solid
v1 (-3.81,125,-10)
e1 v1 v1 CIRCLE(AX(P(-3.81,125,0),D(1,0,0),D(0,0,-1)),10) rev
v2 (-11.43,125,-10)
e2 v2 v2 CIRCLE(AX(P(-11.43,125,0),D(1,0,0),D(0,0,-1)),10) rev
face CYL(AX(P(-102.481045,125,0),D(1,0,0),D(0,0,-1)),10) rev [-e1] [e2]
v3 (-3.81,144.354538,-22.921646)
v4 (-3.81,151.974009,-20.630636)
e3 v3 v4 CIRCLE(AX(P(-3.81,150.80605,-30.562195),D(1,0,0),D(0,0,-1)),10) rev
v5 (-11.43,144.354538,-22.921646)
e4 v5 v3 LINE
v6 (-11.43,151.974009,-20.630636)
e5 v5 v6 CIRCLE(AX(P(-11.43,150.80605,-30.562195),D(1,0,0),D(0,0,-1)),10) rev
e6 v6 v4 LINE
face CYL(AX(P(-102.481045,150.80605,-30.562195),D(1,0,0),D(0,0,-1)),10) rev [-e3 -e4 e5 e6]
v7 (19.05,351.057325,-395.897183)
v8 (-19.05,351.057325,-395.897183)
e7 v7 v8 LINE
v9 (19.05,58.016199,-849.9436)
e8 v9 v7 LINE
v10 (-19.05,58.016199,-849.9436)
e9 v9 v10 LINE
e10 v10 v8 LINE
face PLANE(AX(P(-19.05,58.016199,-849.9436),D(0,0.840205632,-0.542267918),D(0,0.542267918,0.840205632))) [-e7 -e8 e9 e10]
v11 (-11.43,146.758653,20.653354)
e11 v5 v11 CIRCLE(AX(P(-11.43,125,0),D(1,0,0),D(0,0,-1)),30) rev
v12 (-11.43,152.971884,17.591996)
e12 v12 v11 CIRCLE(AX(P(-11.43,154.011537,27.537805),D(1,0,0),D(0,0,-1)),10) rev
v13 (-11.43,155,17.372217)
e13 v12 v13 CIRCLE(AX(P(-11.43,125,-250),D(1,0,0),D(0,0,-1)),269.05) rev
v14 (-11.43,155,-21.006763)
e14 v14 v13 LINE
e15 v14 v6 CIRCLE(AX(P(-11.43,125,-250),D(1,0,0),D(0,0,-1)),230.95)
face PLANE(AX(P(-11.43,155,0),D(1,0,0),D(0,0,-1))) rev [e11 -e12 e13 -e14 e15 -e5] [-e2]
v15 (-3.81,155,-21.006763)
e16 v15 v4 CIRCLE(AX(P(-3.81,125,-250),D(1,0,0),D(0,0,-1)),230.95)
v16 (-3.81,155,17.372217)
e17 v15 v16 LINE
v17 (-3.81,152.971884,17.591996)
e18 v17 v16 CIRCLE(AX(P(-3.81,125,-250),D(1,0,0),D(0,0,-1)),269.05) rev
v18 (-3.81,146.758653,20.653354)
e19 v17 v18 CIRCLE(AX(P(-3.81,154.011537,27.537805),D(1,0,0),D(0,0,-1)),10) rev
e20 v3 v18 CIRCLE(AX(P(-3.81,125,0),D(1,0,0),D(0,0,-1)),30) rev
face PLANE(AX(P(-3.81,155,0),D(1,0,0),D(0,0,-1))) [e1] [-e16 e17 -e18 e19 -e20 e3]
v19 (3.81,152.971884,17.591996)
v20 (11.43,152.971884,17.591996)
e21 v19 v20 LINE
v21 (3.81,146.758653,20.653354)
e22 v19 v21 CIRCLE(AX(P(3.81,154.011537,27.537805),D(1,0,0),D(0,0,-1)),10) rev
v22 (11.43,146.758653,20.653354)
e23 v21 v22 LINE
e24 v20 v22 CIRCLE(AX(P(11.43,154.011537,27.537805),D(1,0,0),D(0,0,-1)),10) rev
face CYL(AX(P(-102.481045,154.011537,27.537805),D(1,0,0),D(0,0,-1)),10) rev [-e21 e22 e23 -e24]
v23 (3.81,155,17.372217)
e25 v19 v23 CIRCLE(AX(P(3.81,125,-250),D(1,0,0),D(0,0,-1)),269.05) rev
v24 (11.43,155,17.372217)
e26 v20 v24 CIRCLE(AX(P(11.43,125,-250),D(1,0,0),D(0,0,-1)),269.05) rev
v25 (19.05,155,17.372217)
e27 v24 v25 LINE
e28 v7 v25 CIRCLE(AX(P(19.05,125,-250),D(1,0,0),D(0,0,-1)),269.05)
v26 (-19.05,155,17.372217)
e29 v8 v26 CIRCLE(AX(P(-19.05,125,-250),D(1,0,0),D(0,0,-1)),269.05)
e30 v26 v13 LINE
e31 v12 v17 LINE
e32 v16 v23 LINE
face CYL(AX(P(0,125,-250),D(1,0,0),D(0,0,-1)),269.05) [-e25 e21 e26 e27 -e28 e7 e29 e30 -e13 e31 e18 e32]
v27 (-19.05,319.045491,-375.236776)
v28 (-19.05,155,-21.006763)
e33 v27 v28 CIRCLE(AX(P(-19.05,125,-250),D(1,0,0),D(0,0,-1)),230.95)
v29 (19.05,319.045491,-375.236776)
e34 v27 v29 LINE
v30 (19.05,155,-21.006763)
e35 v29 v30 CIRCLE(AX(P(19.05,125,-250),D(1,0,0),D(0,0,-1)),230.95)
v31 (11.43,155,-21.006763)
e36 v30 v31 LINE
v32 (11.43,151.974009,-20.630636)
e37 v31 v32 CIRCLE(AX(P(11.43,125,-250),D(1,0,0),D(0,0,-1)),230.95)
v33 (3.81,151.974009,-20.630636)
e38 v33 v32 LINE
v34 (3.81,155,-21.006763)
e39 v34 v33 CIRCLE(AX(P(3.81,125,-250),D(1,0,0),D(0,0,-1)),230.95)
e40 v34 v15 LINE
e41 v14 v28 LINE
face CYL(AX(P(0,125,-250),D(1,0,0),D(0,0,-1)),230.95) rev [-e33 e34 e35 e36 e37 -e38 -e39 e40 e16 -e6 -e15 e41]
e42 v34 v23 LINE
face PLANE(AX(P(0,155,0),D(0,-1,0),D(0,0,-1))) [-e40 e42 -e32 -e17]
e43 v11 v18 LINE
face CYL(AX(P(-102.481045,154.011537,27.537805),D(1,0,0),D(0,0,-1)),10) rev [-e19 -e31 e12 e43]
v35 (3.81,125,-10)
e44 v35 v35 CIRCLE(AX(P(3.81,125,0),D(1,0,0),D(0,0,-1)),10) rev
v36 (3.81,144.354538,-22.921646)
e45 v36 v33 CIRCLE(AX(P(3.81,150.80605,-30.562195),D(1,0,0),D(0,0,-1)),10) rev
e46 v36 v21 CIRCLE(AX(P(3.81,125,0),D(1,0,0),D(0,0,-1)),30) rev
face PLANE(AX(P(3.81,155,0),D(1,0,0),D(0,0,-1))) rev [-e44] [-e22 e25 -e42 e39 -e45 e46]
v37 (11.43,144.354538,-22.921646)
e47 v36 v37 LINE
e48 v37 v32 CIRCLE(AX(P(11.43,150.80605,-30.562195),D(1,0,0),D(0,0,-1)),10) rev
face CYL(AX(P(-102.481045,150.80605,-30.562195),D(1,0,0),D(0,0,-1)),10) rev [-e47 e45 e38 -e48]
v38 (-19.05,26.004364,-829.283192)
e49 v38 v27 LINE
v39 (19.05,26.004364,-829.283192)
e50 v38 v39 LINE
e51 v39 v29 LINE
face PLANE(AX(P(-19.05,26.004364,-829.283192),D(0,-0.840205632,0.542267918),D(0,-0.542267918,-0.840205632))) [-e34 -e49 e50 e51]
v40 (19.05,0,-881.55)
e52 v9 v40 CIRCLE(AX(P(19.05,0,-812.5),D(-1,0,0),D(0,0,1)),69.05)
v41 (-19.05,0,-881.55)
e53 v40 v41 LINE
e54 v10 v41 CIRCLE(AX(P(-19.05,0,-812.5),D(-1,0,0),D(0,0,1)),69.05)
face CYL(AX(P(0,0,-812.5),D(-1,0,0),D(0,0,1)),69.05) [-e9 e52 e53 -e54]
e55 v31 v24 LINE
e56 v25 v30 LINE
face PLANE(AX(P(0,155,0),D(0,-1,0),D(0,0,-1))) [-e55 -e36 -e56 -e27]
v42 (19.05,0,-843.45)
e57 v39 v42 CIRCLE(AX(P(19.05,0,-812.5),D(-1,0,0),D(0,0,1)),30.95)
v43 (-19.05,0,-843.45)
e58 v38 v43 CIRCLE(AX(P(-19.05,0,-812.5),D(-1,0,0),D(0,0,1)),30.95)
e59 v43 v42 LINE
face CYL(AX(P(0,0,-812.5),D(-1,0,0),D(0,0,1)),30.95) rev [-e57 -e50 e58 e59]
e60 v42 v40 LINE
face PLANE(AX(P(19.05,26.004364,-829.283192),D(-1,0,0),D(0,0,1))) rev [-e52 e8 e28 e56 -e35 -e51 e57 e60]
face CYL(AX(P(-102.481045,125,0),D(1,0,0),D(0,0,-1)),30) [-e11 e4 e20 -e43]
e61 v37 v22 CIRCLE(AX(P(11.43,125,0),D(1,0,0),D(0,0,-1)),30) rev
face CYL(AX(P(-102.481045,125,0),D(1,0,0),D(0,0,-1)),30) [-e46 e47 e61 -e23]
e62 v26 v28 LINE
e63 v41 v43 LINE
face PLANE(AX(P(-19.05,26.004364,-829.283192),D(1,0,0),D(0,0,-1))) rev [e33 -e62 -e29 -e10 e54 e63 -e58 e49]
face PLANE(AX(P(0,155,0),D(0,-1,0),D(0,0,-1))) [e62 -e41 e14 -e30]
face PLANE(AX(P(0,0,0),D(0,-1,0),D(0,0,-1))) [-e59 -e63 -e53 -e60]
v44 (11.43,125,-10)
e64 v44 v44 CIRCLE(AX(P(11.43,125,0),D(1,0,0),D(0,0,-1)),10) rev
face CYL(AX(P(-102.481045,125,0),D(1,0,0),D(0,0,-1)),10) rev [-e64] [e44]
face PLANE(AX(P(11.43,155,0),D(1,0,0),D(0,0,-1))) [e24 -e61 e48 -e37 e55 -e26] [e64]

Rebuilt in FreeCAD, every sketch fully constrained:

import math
import FreeCAD as App
import Part
import Sketcher
from FreeCAD import Vector

doc = App.newDocument("Part")
params = doc.addObject("Spreadsheet::Sheet", "Params")
for row, (alias, value) in enumerate([
    ("sketch1_width", "38.1 mm"),
    ("sketch2_radius", "50 mm"),
    ("sketch2_radius2", "250 mm"),
    ("sketch3_radius", "10 mm"),
    ("sketch3_radius2", "30 mm"),
    ("sketch3_radius3", "230.95 mm"),
    ("sketch3_radius4", "269.05 mm"),
    ("pad1_length", "38.1 mm"),
    ("sketch4_diameter", "20 mm"),
    ("sketch5_width", "7.62 mm"),
    ("pocket2_length", "60 mm"),
], start=1):
    params.set(f"A{row}", alias)
    params.set(f"B{row}", "=" + value)
    params.setAlias(f"B{row}", alias)

body = doc.addObject("PartDesign::Body", "Body")

# Sketch on XZ plane
sketch1 = body.newObject("Sketcher::SketchObject", "Sketch")
sketch1.AttachmentSupport = (doc.getObject("XZ_Plane"), [""])
sketch1.MapMode = "FlatFace"
sketch1.addGeometry(Part.LineSegment(Vector(-19, -882, 0), Vector(-19, -843, 0)), False)
sketch1.addGeometry(Part.LineSegment(Vector(-19, -843, 0), Vector(19, -843, 0)), False)
sketch1.addGeometry(Part.LineSegment(Vector(19, -843, 0), Vector(19, -882, 0)), False)
sketch1.addGeometry(Part.LineSegment(Vector(19, -882, 0), Vector(-19, -882, 0)), False)
sketch1.addConstraint(Sketcher.Constraint("Coincident", 0, 2, 1, 1))
sketch1.addConstraint(Sketcher.Constraint("Coincident", 1, 2, 2, 1))
sketch1.addConstraint(Sketcher.Constraint("Coincident", 2, 2, 3, 1))
sketch1.addConstraint(Sketcher.Constraint("Coincident", 3, 2, 0, 1))
sketch1.addConstraint(Sketcher.Constraint("Vertical", 0))
sketch1.addConstraint(Sketcher.Constraint("Horizontal", 1))
sketch1.addConstraint(Sketcher.Constraint("Vertical", 2))
sketch1.addConstraint(Sketcher.Constraint("Horizontal", 3))
sketch1.addConstraint(Sketcher.Constraint("Equal", 3, 0))
sketch1.addConstraint(Sketcher.Constraint("DistanceX", 1, 1, 1, 2, 38.1))
sketch1.addConstraint(Sketcher.Constraint("DistanceX", 0, 2, -1, 1, 19.05))
sketch1.addConstraint(Sketcher.Constraint("DistanceY", 0, 2, -1, 1, 843.45))
sketch1.setExpression("Constraints[9]", "Params.sketch1_width")

# Sketch on YZ plane
sketch2 = body.newObject("Sketcher::SketchObject", "Sketch001")
sketch2.AttachmentSupport = (doc.getObject("YZ_Plane"), [""])
sketch2.MapMode = "FlatFace"
sketch2.addGeometry(Part.ArcOfCircle(Part.Circle(Vector(0, -812, 0), Vector(0, 0, 1), 50), math.radians(-90), math.radians(-33)), False)
sketch2.addGeometry(Part.LineSegment(Vector(42, -840, 0), Vector(335, -386, 0)), False)
sketch2.addGeometry(Part.ArcOfCircle(Part.Circle(Vector(125, -250, 0), Vector(0, 0, 1), 250), math.radians(-33), math.radians(90)), False)
sketch2.addConstraint(Sketcher.Constraint("Tangent", 0, 2, 1, 1))
sketch2.addConstraint(Sketcher.Constraint("Tangent", 1, 2, 2, 1))
sketch2.addConstraint(Sketcher.Constraint("PointOnObject", 0, 3, -2))
sketch2.addConstraint(Sketcher.Constraint("PointOnObject", 0, 1, -2))
sketch2.addConstraint(Sketcher.Constraint("PointOnObject", 2, 2, -1))
sketch2.addConstraint(Sketcher.Constraint("Radius", 0, 50.0))
sketch2.addConstraint(Sketcher.Constraint("Radius", 2, 250.0))
sketch2.addConstraint(Sketcher.Constraint("DistanceX", -1, 1, 2, 3, 125.0))
sketch2.addConstraint(Sketcher.Constraint("DistanceX", -1, 1, 2, 2, 125.0))
sketch2.addConstraint(Sketcher.Constraint("DistanceY", 0, 3, -1, 1, 812.5))
sketch2.setExpression("Constraints[5]", "Params.sketch2_radius")
sketch2.setExpression("Constraints[6]", "Params.sketch2_radius2")
doc.recompute()

additivepipe = body.newObject("PartDesign::AdditivePipe", "AdditivePipe")
additivepipe.Profile = sketch1
additivepipe.Spine = (sketch2, ["Edge1", "Edge2", "Edge3"])

# Sketch on YZ plane
sketch3 = body.newObject("Sketcher::SketchObject", "Sketch002")
sketch3.AttachmentSupport = (doc.getObject("YZ_Plane"), [""])
sketch3.MapMode = "FlatFace"
sketch3.AttachmentOffset = App.Placement(Vector(0, 0, 19.05), App.Rotation())
sketch3.addGeometry(Part.ArcOfCircle(Part.Circle(Vector(151, -31, 0), Vector(0, 0, 1), 10), math.radians(83), math.radians(130)), False)
sketch3.addGeometry(Part.ArcOfCircle(Part.Circle(Vector(125, -250, 0), Vector(0, 0, 1), 231), math.radians(83.29), math.radians(90)), False)
sketch3.addGeometry(Part.LineSegment(Vector(125, -19, 0), Vector(125, -10, 0)), False)
sketch3.addGeometry(Part.ArcOfCircle(Part.Circle(Vector(125, 0, 0), Vector(0, 0, 1), 10), math.radians(90), math.radians(270)), False)
sketch3.addGeometry(Part.LineSegment(Vector(125, 10, 0), Vector(125, 19, 0)), False)
sketch3.addGeometry(Part.ArcOfCircle(Part.Circle(Vector(125, -250, 0), Vector(0, 0, 1), 269), math.radians(84.03), math.radians(90)), False)
sketch3.addGeometry(Part.ArcOfCircle(Part.Circle(Vector(154, 28, 0), Vector(0, 0, 1), 10), math.radians(-136), math.radians(-96)), False)
sketch3.addGeometry(Part.ArcOfCircle(Part.Circle(Vector(125, 0, 0), Vector(0, 0, 1), 30), math.radians(44), math.radians(310)), False)
sketch3.addConstraint(Sketcher.Constraint("Tangent", 0, 1, 1, 1))
sketch3.addConstraint(Sketcher.Constraint("Coincident", 1, 2, 2, 1))
sketch3.addConstraint(Sketcher.Constraint("Coincident", 2, 2, 3, 2))
sketch3.addConstraint(Sketcher.Constraint("Coincident", 3, 1, 4, 1))
sketch3.addConstraint(Sketcher.Constraint("Coincident", 4, 2, 5, 2))
sketch3.addConstraint(Sketcher.Constraint("Tangent", 5, 1, 6, 2))
sketch3.addConstraint(Sketcher.Constraint("Tangent", 6, 1, 7, 1))
sketch3.addConstraint(Sketcher.Constraint("Tangent", 7, 2, 0, 2))
sketch3.addConstraint(Sketcher.Constraint("Vertical", 2))
sketch3.addConstraint(Sketcher.Constraint("Vertical", 4))
sketch3.addConstraint(Sketcher.Constraint("Coincident", 5, 3, 1, 3))
sketch3.addConstraint(Sketcher.Constraint("Coincident", 7, 3, 3, 3))
sketch3.addConstraint(Sketcher.Constraint("Equal", 0, 3))
sketch3.addConstraint(Sketcher.Constraint("Equal", 3, 6))
sketch3.addConstraint(Sketcher.Constraint("Symmetric", 2, 2, 3, 1, -1))
sketch3.addConstraint(Sketcher.Constraint("Vertical", 1, 3, 3, 3))
sketch3.addConstraint(Sketcher.Constraint("Vertical", 7, 3, 1, 2))
sketch3.addConstraint(Sketcher.Constraint("Equal", 2, 4))
sketch3.addConstraint(Sketcher.Constraint("Radius", 0, 10.0))
sketch3.addConstraint(Sketcher.Constraint("Radius", 7, 30.0))
sketch3.addConstraint(Sketcher.Constraint("Radius", 1, 230.95))
sketch3.addConstraint(Sketcher.Constraint("Radius", 5, 269.05))
sketch3.addConstraint(Sketcher.Constraint("DistanceX", -1, 1, 1, 3, 125.0))
sketch3.setExpression("Constraints[18]", "Params.sketch3_radius")
sketch3.setExpression("Constraints[19]", "Params.sketch3_radius2")
sketch3.setExpression("Constraints[20]", "Params.sketch3_radius3")
sketch3.setExpression("Constraints[21]", "Params.sketch3_radius4")
pad1 = body.newObject("PartDesign::Pad", "Pad")
pad1.Profile = sketch3
pad1.setExpression("Length", "Params.pad1_length")
pad1.Reversed = True

# Sketch on YZ plane
sketch4 = body.newObject("Sketcher::SketchObject", "Sketch003")
sketch4.AttachmentSupport = (doc.getObject("YZ_Plane"), [""])
sketch4.MapMode = "FlatFace"
sketch4.AttachmentOffset = App.Placement(Vector(0, 0, 19.05), App.Rotation())
sketch4.addGeometry(Part.Circle(Vector(125, 0, 0), Vector(0, 0, 1), 10), False)
sketch4.addConstraint(Sketcher.Constraint("PointOnObject", 0, 3, -1))
sketch4.addConstraint(Sketcher.Constraint("Diameter", 0, 20.0))
sketch4.addConstraint(Sketcher.Constraint("DistanceX", -1, 1, 0, 3, 125.0))
sketch4.setExpression("Constraints[1]", "Params.sketch4_diameter")
pocket1 = body.newObject("PartDesign::Pocket", "Pocket")
pocket1.Profile = sketch4
pocket1.Type = "ThroughAll"

# Sketch on XZ plane
sketch5 = body.newObject("Sketcher::SketchObject", "Sketch004")
sketch5.AttachmentSupport = (doc.getObject("XZ_Plane"), [""])
sketch5.MapMode = "FlatFace"
sketch5.AttachmentOffset = App.Placement(Vector(0, 0, -95), App.Rotation())
sketch5.addGeometry(Part.LineSegment(Vector(19, -57, 0), Vector(19, 59, 0)), False)
sketch5.addGeometry(Part.LineSegment(Vector(19, 59, 0), Vector(11, 59, 0)), False)
sketch5.addGeometry(Part.LineSegment(Vector(11, 59, 0), Vector(11, -57, 0)), False)
sketch5.addGeometry(Part.LineSegment(Vector(11, -57, 0), Vector(19, -57, 0)), False)
sketch5.addGeometry(Part.LineSegment(Vector(4, -57, 0), Vector(4, 59, 0)), False)
sketch5.addGeometry(Part.LineSegment(Vector(4, 59, 0), Vector(-4, 59, 0)), False)
sketch5.addGeometry(Part.LineSegment(Vector(-4, 59, 0), Vector(-4, -57, 0)), False)
sketch5.addGeometry(Part.LineSegment(Vector(-4, -57, 0), Vector(4, -57, 0)), False)
sketch5.addGeometry(Part.LineSegment(Vector(-11, -57, 0), Vector(-11, 59, 0)), False)
sketch5.addGeometry(Part.LineSegment(Vector(-11, 59, 0), Vector(-19, 59, 0)), False)
sketch5.addGeometry(Part.LineSegment(Vector(-19, 59, 0), Vector(-19, -57, 0)), False)
sketch5.addGeometry(Part.LineSegment(Vector(-19, -57, 0), Vector(-11, -57, 0)), False)
sketch5.addConstraint(Sketcher.Constraint("Coincident", 0, 2, 1, 1))
sketch5.addConstraint(Sketcher.Constraint("Coincident", 1, 2, 2, 1))
sketch5.addConstraint(Sketcher.Constraint("Coincident", 2, 2, 3, 1))
sketch5.addConstraint(Sketcher.Constraint("Coincident", 3, 2, 0, 1))
sketch5.addConstraint(Sketcher.Constraint("Coincident", 4, 2, 5, 1))
sketch5.addConstraint(Sketcher.Constraint("Coincident", 5, 2, 6, 1))
sketch5.addConstraint(Sketcher.Constraint("Coincident", 6, 2, 7, 1))
sketch5.addConstraint(Sketcher.Constraint("Coincident", 7, 2, 4, 1))
sketch5.addConstraint(Sketcher.Constraint("Coincident", 8, 2, 9, 1))
sketch5.addConstraint(Sketcher.Constraint("Coincident", 9, 2, 10, 1))
sketch5.addConstraint(Sketcher.Constraint("Coincident", 10, 2, 11, 1))
sketch5.addConstraint(Sketcher.Constraint("Coincident", 11, 2, 8, 1))
sketch5.addConstraint(Sketcher.Constraint("Vertical", 0))
sketch5.addConstraint(Sketcher.Constraint("Horizontal", 1))
sketch5.addConstraint(Sketcher.Constraint("Vertical", 2))
sketch5.addConstraint(Sketcher.Constraint("Horizontal", 3))
sketch5.addConstraint(Sketcher.Constraint("Vertical", 4))
sketch5.addConstraint(Sketcher.Constraint("Horizontal", 5))
sketch5.addConstraint(Sketcher.Constraint("Vertical", 6))
sketch5.addConstraint(Sketcher.Constraint("Horizontal", 7))
sketch5.addConstraint(Sketcher.Constraint("Vertical", 8))
sketch5.addConstraint(Sketcher.Constraint("Horizontal", 9))
sketch5.addConstraint(Sketcher.Constraint("Vertical", 10))
sketch5.addConstraint(Sketcher.Constraint("Horizontal", 11))
sketch5.addConstraint(Sketcher.Constraint("Symmetric", 1, 2, 8, 2, -2))
sketch5.addConstraint(Sketcher.Constraint("Symmetric", 3, 2, 10, 2, -2))
sketch5.addConstraint(Sketcher.Constraint("Horizontal", 1, 2, 4, 2))
sketch5.addConstraint(Sketcher.Constraint("Horizontal", 3, 2, 6, 2))
sketch5.addConstraint(Sketcher.Constraint("Equal", 3, 5))
sketch5.addConstraint(Sketcher.Constraint("DistanceX", 1, 2, 1, 1, 7.62))
sketch5.addConstraint(Sketcher.Constraint("DistanceX", 9, 2, 0, 2, 38.1))
sketch5.addConstraint(Sketcher.Constraint("DistanceX", -1, 1, 4, 2, 3.81))
sketch5.addConstraint(Sketcher.Constraint("DistanceY", 0, 1, 0, 2, 116.34084))
sketch5.addConstraint(Sketcher.Constraint("DistanceY", -1, 1, 0, 2, 58.913684))
sketch5.setExpression("Constraints[29]", "Params.sketch5_width")
pocket2 = body.newObject("PartDesign::Pocket", "Pocket001")
pocket2.Profile = sketch5
pocket2.setExpression("Length", "Params.pocket2_length")

doc.recompute()
